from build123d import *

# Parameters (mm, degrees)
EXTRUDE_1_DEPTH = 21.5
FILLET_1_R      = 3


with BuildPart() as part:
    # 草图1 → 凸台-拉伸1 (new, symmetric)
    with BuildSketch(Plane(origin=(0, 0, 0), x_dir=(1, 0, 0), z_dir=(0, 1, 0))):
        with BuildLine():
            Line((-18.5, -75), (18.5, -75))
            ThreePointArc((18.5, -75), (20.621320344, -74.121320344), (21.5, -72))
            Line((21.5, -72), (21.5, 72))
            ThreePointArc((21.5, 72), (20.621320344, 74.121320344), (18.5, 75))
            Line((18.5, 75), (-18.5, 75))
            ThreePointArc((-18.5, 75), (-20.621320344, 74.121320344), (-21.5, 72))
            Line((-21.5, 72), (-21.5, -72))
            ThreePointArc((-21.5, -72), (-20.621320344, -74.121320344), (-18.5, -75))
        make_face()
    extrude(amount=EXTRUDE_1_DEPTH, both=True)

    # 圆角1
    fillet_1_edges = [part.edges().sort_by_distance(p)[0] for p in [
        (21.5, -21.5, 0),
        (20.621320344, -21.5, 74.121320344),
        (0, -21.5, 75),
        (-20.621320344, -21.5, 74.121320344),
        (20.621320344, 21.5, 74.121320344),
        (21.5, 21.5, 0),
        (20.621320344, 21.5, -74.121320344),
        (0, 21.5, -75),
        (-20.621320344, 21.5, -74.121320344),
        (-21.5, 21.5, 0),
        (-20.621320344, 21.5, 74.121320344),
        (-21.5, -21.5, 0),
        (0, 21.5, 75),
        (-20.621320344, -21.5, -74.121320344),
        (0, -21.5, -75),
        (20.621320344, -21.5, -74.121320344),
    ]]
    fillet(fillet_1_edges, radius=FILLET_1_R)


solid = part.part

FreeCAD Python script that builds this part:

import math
import FreeCAD as App
import Part
import Sketcher
Q = App.Units.Quantity


def edges_at(feature, points):
    """Names of the edges that pass closest to the given points."""
    edges = feature.Shape.Edges
    near = lambda p: min(range(len(edges)), key=lambda i: edges[i].distToShape(Part.Vertex(*p))[0])
    return sorted({f"Edge{near(p) + 1}" for p in points})

doc = App.newDocument("Part")
body = doc.addObject("PartDesign::Body", "Body")

sketch1 = body.newObject("Sketcher::SketchObject", "Sketch")
sketch1.AttachmentSupport = (doc.getObject("XZ_Plane"), [""])
sketch1.MapMode = "FlatFace"
sketch1.addGeometry([
    Part.LineSegment(App.Vector(-18.5, 75, 0), App.Vector(18.5, 75, 0)),
    Part.ArcOfCircle(Part.Circle(App.Vector(18.5, 72, 0), App.Vector(0, 0, 1), 3), math.radians(0), math.radians(90)),
    Part.LineSegment(App.Vector(21.5, 72, 0), App.Vector(21.5, -72, 0)),
    Part.ArcOfCircle(Part.Circle(App.Vector(18.5, -72, 0), App.Vector(0, 0, 1), 3), math.radians(-90), math.radians(0)),
    Part.LineSegment(App.Vector(18.5, -75, 0), App.Vector(-18.5, -75, 0)),
    Part.ArcOfCircle(Part.Circle(App.Vector(-18.5, -72, 0), App.Vector(0, 0, 1), 3), math.radians(180), math.radians(270)),
    Part.LineSegment(App.Vector(-21.5, -72, 0), App.Vector(-21.5, 72, 0)),
    Part.ArcOfCircle(Part.Circle(App.Vector(-18.5, 72, 0), App.Vector(0, 0, 1), 3), math.radians(90), math.radians(180)),
], False)
sketch1.addConstraint([
    Sketcher.Constraint("Tangent", 0, 2, 1, 2),
    Sketcher.Constraint("Tangent", 1, 1, 2, 1),
    Sketcher.Constraint("Tangent", 2, 2, 3, 2),
    Sketcher.Constraint("Tangent", 3, 1, 4, 1),
    Sketcher.Constraint("Tangent", 4, 2, 5, 2),
    Sketcher.Constraint("Tangent", 5, 1, 6, 1),
    Sketcher.Constraint("Tangent", 6, 2, 7, 2),
    Sketcher.Constraint("Tangent", 7, 1, 0, 1),
    Sketcher.Constraint("Horizontal", 0),
    Sketcher.Constraint("Vertical", 2),
    Sketcher.Constraint("Horizontal", 4),
    Sketcher.Constraint("Vertical", 6),
    Sketcher.Constraint("Equal", 1, 3),
    Sketcher.Constraint("Equal", 3, 5),
    Sketcher.Constraint("Equal", 5, 7),
    Sketcher.Constraint("Symmetric", 1, 3, 5, 3, -1, 1),
    Sketcher.Constraint("Radius", 1, Q("3 mm")),
    Sketcher.Constraint("DistanceX", 0, 1, 0, 2, Q("37 mm")),
    Sketcher.Constraint("DistanceY", 2, 2, 2, 1, Q("144 mm")),
])
pad1 = body.newObject("PartDesign::Pad", "Pad")
pad1.Profile = sketch1
pad1.Length = 43
pad1.Midplane = True
doc.recompute()

fillet = body.newObject("PartDesign::Fillet", "Fillet")
fillet.Base = (pad1, edges_at(pad1, [
    (21.5, -21.5, 0),
    (20.621, -21.5, 74.121),
    (0, -21.5, 75),
    (-20.621, -21.5, 74.121),
    (20.621, 21.5, 74.121),
    (21.5, 21.5, 0),
    (20.621, 21.5, -74.121),
    (0, 21.5, -75),
    (-20.621, 21.5, -74.121),
    (-21.5, 21.5, 0),
    (-20.621, 21.5, 74.121),
    (-21.5, -21.5, 0),
    (0, 21.5, 75),
    (-20.621, -21.5, -74.121),
    (0, -21.5, -75),
    (20.621, -21.5, -74.121),
]))
fillet.Radius = 3

doc.recompute()
